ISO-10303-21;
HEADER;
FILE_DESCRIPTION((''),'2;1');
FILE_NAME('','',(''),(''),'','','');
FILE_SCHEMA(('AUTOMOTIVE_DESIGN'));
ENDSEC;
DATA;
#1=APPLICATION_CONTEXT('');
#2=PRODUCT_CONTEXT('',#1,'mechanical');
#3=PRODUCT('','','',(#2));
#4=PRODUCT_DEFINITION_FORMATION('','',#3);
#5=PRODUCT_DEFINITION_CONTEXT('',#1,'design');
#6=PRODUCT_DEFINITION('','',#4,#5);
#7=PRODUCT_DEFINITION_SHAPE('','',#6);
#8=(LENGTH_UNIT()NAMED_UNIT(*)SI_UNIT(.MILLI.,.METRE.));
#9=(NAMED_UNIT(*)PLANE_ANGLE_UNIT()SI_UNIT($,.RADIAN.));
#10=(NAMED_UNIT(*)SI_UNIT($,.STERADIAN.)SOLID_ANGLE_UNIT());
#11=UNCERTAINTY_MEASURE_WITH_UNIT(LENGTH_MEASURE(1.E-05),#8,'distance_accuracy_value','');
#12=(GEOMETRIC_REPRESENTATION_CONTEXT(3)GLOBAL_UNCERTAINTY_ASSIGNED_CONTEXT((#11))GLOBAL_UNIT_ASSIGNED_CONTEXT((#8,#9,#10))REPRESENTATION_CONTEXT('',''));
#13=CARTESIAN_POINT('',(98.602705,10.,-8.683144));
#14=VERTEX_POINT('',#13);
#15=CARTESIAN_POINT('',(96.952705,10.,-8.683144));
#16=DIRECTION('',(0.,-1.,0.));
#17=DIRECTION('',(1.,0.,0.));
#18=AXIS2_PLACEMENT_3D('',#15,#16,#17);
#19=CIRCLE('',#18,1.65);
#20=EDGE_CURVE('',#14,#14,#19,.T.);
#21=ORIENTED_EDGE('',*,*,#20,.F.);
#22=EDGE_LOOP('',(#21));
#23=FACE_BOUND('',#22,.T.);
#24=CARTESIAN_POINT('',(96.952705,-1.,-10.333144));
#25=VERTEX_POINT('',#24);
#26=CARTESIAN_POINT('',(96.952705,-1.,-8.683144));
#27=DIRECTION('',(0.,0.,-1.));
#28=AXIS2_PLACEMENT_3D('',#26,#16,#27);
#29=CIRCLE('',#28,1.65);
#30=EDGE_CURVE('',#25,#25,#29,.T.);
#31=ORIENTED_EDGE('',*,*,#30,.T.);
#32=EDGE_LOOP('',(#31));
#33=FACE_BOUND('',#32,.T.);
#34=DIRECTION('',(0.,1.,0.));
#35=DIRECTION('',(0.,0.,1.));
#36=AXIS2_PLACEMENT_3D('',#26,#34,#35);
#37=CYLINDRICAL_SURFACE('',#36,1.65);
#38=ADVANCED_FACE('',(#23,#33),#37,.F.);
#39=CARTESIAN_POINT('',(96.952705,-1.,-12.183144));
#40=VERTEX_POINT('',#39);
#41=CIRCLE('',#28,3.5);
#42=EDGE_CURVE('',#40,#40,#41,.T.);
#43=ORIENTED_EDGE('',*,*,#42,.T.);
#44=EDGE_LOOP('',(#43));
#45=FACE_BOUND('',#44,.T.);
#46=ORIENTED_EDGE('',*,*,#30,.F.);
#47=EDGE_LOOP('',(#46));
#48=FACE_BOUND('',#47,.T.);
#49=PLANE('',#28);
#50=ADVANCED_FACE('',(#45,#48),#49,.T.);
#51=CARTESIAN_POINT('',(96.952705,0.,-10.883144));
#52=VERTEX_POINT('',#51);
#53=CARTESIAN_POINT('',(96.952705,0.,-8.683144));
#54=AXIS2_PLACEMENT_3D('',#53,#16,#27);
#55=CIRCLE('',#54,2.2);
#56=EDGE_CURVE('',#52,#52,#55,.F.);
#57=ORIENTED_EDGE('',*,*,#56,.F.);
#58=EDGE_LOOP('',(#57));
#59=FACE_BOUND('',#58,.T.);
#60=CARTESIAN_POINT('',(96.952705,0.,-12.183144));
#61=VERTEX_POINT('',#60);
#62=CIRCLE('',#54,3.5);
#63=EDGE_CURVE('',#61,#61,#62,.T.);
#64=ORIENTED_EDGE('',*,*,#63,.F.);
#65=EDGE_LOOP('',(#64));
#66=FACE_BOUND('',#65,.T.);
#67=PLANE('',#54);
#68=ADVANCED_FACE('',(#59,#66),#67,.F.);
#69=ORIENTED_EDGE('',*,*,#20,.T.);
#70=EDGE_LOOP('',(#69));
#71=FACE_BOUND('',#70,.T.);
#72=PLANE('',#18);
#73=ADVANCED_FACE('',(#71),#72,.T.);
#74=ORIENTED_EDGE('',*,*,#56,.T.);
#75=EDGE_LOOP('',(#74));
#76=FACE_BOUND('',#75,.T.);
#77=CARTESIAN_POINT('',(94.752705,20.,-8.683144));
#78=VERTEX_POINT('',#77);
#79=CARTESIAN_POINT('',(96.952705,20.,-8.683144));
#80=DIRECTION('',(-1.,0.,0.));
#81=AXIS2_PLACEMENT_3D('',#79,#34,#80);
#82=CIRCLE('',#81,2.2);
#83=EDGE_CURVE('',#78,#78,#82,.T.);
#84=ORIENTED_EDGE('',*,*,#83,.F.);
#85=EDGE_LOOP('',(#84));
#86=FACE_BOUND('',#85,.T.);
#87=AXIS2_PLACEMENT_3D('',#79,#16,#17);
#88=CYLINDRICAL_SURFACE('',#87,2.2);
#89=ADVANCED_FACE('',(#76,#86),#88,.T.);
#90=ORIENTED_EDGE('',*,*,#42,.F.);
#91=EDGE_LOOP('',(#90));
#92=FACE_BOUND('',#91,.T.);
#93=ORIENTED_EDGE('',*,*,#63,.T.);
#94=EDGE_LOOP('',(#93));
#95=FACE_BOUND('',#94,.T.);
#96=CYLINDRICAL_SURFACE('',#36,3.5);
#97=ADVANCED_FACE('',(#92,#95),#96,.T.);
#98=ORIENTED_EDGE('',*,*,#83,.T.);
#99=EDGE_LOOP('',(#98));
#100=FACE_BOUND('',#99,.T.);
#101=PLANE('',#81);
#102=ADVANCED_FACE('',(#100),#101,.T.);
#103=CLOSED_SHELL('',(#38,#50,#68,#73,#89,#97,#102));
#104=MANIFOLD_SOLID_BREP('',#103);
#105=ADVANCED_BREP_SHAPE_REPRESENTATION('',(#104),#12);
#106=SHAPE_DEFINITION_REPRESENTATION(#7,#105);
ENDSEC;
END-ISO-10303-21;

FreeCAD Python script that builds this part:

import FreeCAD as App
import Part
import Sketcher

V = App.Vector

doc = App.newDocument("Part")
body = doc.addObject("PartDesign::Body", "Body")

sketch1 = body.newObject("Sketcher::SketchObject", "Sketch")
sketch1.AttachmentSupport = (doc.getObject("XZ_Plane"), [""])
sketch1.MapMode = "FlatFace"
sketch1.addGeometry([
    Part.Circle(V(96.952705, -8.683144, 0), V(0, 0, 1), 3.5),
    Part.Circle(V(96.952705, -8.683144, 0), V(0, 0, 1), 1.65),
], False)
sketch1.addConstraint([
    Sketcher.Constraint("Coincident", 1, 3, 0, 3),
    Sketcher.Constraint("Diameter", 0, 7.0),
    Sketcher.Constraint("Diameter", 1, 3.3),
    Sketcher.Constraint("DistanceX", -1, 1, 0, 3, 96.952705),
    Sketcher.Constraint("DistanceY", 0, 3, -1, 1, 8.683144),
])
pad1 = body.newObject("PartDesign::Pad", "Pad")
pad1.Profile = sketch1
pad1.Length = 1

sketch2 = body.newObject("Sketcher::SketchObject", "Sketch001")
sketch2.AttachmentSupport = (doc.getObject("XZ_Plane"), [""])
sketch2.MapMode = "FlatFace"
sketch2.addGeometry(Part.Circle(V(96.952705, -8.683144, 0), V(0, 0, 1), 2.2), False)
sketch2.addConstraint([
    Sketcher.Constraint("Diameter", 0, 4.4),
    Sketcher.Constraint("DistanceX", -1, 1, 0, 3, 96.952705),
    Sketcher.Constraint("DistanceY", 0, 3, -1, 1, 8.683144),
])
pad2 = body.newObject("PartDesign::Pad", "Pad001")
pad2.Profile = sketch2
pad2.Length = 20
pad2.Reversed = True

sketch3 = body.newObject("Sketcher::SketchObject", "Sketch002")
sketch3.AttachmentSupport = (doc.getObject("XZ_Plane"), [""])
sketch3.MapMode = "FlatFace"
sketch3.addGeometry(Part.Circle(V(96.952705, -8.683144, 0), V(0, 0, 1), 1.65), False)
sketch3.addConstraint([
    Sketcher.Constraint("Diameter", 0, 3.3),
    Sketcher.Constraint("DistanceX", -1, 1, 0, 3, 96.952705),
    Sketcher.Constraint("DistanceY", 0, 3, -1, 1, 8.683144),
])
pocket1 = body.newObject("PartDesign::Pocket", "Pocket")
pocket1.Profile = sketch3
pocket1.Length = 10

doc.recompute()
